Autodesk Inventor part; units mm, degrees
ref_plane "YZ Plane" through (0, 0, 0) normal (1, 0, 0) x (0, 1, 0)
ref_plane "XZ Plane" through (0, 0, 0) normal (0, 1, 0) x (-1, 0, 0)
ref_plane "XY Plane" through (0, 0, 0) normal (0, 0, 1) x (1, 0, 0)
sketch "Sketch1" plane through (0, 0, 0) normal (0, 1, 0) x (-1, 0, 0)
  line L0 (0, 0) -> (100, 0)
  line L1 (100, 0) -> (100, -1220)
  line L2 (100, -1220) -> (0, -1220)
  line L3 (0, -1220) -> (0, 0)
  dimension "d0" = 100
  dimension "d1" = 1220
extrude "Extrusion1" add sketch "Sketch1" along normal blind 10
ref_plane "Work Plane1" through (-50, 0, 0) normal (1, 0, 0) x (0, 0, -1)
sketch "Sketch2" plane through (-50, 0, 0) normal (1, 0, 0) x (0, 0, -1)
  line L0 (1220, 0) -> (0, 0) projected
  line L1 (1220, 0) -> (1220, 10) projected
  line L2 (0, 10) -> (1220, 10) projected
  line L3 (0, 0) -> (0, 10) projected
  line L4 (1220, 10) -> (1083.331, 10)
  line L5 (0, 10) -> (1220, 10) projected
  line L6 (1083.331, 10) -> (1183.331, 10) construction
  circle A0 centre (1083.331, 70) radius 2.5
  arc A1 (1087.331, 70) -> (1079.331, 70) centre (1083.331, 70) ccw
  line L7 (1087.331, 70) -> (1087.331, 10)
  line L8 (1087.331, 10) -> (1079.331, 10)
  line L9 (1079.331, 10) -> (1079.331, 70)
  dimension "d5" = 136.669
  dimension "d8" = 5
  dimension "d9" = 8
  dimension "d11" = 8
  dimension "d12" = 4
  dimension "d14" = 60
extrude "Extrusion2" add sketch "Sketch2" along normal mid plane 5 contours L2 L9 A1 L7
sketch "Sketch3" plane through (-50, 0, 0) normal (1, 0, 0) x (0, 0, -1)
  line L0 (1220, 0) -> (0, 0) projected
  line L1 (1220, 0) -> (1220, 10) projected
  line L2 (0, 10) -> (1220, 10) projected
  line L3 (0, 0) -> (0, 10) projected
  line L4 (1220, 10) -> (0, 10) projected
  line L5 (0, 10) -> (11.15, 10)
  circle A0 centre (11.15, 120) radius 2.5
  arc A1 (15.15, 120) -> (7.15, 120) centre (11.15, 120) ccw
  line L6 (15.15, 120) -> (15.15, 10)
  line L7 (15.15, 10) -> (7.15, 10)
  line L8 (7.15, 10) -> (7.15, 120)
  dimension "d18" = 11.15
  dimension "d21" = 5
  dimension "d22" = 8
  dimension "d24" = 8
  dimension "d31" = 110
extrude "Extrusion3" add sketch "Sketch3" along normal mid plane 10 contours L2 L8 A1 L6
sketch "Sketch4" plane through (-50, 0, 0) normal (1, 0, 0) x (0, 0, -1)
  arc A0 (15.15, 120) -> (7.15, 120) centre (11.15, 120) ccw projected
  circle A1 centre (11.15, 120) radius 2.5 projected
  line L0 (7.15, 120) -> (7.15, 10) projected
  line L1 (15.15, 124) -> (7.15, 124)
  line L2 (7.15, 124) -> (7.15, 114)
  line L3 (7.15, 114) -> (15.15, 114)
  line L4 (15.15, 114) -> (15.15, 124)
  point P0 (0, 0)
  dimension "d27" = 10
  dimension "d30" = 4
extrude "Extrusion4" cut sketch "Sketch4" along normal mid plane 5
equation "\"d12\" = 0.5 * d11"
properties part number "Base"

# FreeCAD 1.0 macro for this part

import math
import FreeCAD as App
import Part
import Sketcher


def add_polygon(sketch, points):
    """Adds a closed chain of lines whose ends are joined by coincident constraints."""
    first, n = sketch.GeometryCount, len(points)
    for a, b in zip(points, points[1:] + points[:1]):
        sketch.addGeometry(Part.LineSegment(App.Vector(*a, 0), App.Vector(*b, 0)), False)
    for i in range(n):
        sketch.addConstraint(Sketcher.Constraint("Coincident", first + i, 2, first + (i + 1) % n, 1))

doc = App.newDocument("Part")
params = doc.addObject("Spreadsheet::Sheet", "Params")
for row, (alias, value) in enumerate([
    ("sketch1_width", "100 mm"),
    ("sketch1_height", "1220 mm"),
    ("pad1_length", "10 mm"),
    ("sketch2_diameter", "5 mm"),
    ("sketch2_radius", "4 mm"),
    ("sketch2_width", "60 mm"),
    ("pad2_length", "5 mm"),
    ("sketch3_diameter", "5 mm"),
    ("sketch3_radius", "4 mm"),
    ("sketch3_width", "110 mm"),
    ("pad3_length", "10 mm"),
    ("sketch4_width", "10 mm"),
    ("sketch4_diameter", "5 mm"),
    ("pocket1_length", "5 mm"),
], start=1):
    params.set(f"A{row}", alias)
    params.set(f"B{row}", "=" + value)
    params.setAlias(f"B{row}", alias)

body = doc.addObject("PartDesign::Body", "Body")

# Sketch on XZ plane
sketch1 = body.newObject("Sketcher::SketchObject", "Sketch")
sketch1.AttachmentSupport = (doc.getObject("XZ_Plane"), [""])
sketch1.MapMode = "FlatFace"
add_polygon(sketch1, [(-100, 0), (0, 0), (0, -1220), (-100, -1220)])  # lines 0-3
sketch1.addConstraint([
    Sketcher.Constraint("Horizontal", 0),
    Sketcher.Constraint("Vertical", 1),
    Sketcher.Constraint("Horizontal", 2),
    Sketcher.Constraint("Vertical", 3),
    Sketcher.Constraint("Coincident", 0, 2, -1, 1),
    Sketcher.Constraint("DistanceX", 0, 1, 0, 2, 100.0),
    Sketcher.Constraint("DistanceY", 1, 2, 1, 1, 1220.0),
])
sketch1.setExpression("Constraints[9]", "Params.sketch1_width")
sketch1.setExpression("Constraints[10]", "Params.sketch1_height")
pad1 = body.newObject("PartDesign::Pad", "Pad")
pad1.Profile = sketch1
pad1.setExpression("Length", "Params.pad1_length")
pad1.Reversed = True

# Sketch on YZ plane
sketch2 = body.newObject("Sketcher::SketchObject", "Sketch001")
sketch2.AttachmentSupport = (doc.getObject("YZ_Plane"), [""])
sketch2.MapMode = "FlatFace"
sketch2.AttachmentOffset = App.Placement(App.Vector(0, 0, -50), App.Rotation())
sketch2.addGeometry([
    Part.LineSegment(App.Vector(10, -1079.3, 0), App.Vector(10, -1087.3, 0)),  # 0
    Part.LineSegment(App.Vector(10, -1087.3, 0), App.Vector(70, -1087.3, 0)),  # 1
    Part.ArcOfCircle(Part.Circle(App.Vector(70, -1083.3, 0), App.Vector(0, 0, 1), 4), math.radians(-90), math.radians(90)),  # 2
    Part.LineSegment(App.Vector(70, -1079.3, 0), App.Vector(10, -1079.3, 0)),  # 3
    Part.Circle(App.Vector(70, -1083.3, 0), App.Vector(0, 0, 1), 2.5),  # 4
], False)
sketch2.addConstraint([
    Sketcher.Constraint("Coincident", 0, 2, 1, 1),
    Sketcher.Constraint("Tangent", 1, 2, 2, 1),
    Sketcher.Constraint("Tangent", 2, 2, 3, 1),
    Sketcher.Constraint("Coincident", 3, 2, 0, 1),
    Sketcher.Constraint("Vertical", 0),
    Sketcher.Constraint("Horizontal", 1),
    Sketcher.Constraint("Horizontal", 3),
    Sketcher.Constraint("Coincident", 4, 3, 2, 3),
    Sketcher.Constraint("Diameter", 4, 5.0),
    Sketcher.Constraint("Radius", 2, 4.0),
    Sketcher.Constraint("DistanceX", 1, 1, 1, 2, 60.0),
    Sketcher.Constraint("DistanceX", -1, 1, 2, 3, 70.0),
    Sketcher.Constraint("DistanceY", 2, 3, -1, 1, 1083.331),
])
sketch2.setExpression("Constraints[8]", "Params.sketch2_diameter")
sketch2.setExpression("Constraints[9]", "Params.sketch2_radius")
sketch2.setExpression("Constraints[10]", "Params.sketch2_width")
pad2 = body.newObject("PartDesign::Pad", "Pad001")
pad2.Profile = sketch2
pad2.setExpression("Length", "Params.pad2_length")
pad2.Midplane = True

# Sketch on YZ plane
sketch3 = body.newObject("Sketcher::SketchObject", "Sketch002")
sketch3.AttachmentSupport = (doc.getObject("YZ_Plane"), [""])
sketch3.MapMode = "FlatFace"
sketch3.AttachmentOffset = App.Placement(App.Vector(0, 0, -50), App.Rotation())
sketch3.addGeometry([
    Part.LineSegment(App.Vector(10, -7.2, 0), App.Vector(10, -15.2, 0)),  # 0
    Part.LineSegment(App.Vector(10, -15.2, 0), App.Vector(120, -15.2, 0)),  # 1
    Part.ArcOfCircle(Part.Circle(App.Vector(120, -11.2, 0), App.Vector(0, 0, 1), 4), math.radians(-90), math.radians(90)),  # 2
    Part.LineSegment(App.Vector(120, -7.2, 0), App.Vector(10, -7.2, 0)),  # 3
    Part.Circle(App.Vector(120, -11.2, 0), App.Vector(0, 0, 1), 2.5),  # 4
], False)
sketch3.addConstraint([
    Sketcher.Constraint("Coincident", 0, 2, 1, 1),
    Sketcher.Constraint("Tangent", 1, 2, 2, 1),
    Sketcher.Constraint("Tangent", 2, 2, 3, 1),
    Sketcher.Constraint("Coincident", 3, 2, 0, 1),
    Sketcher.Constraint("Vertical", 0),
    Sketcher.Constraint("Horizontal", 1),
    Sketcher.Constraint("Horizontal", 3),
    Sketcher.Constraint("Coincident", 4, 3, 2, 3),
    Sketcher.Constraint("Diameter", 4, 5.0),
    Sketcher.Constraint("Radius", 2, 4.0),
    Sketcher.Constraint("DistanceX", 1, 1, 1, 2, 110.0),
    Sketcher.Constraint("DistanceY", 2, 3, -1, 1, 11.15),
    Sketcher.Constraint("DistanceX", -1, 1, 2, 3, 120.0),
])
sketch3.setExpression("Constraints[8]", "Params.sketch3_diameter")
sketch3.setExpression("Constraints[9]", "Params.sketch3_radius")
sketch3.setExpression("Constraints[10]", "Params.sketch3_width")
pad3 = body.newObject("PartDesign::Pad", "Pad002")
pad3.Profile = sketch3
pad3.setExpression("Length", "Params.pad3_length")
pad3.Midplane = True

# Sketch on YZ plane
sketch4 = body.newObject("Sketcher::SketchObject", "Sketch003")
sketch4.AttachmentSupport = (doc.getObject("YZ_Plane"), [""])
sketch4.MapMode = "FlatFace"
sketch4.AttachmentOffset = App.Placement(App.Vector(0, 0, -50), App.Rotation())
add_polygon(sketch4, [(114, -15.2), (124, -15.2), (124, -7.2), (114, -7.2)])  # lines 0-3
sketch4.addGeometry(Part.Circle(App.Vector(120, -11.2, 0), App.Vector(0, 0, 1), 2.5), False)  # 4
sketch4.addConstraint([
    Sketcher.Constraint("Horizontal", 0),
    Sketcher.Constraint("Vertical", 1),
    Sketcher.Constraint("Horizontal", 2),
    Sketcher.Constraint("Vertical", 3),
    Sketcher.Constraint("DistanceX", 0, 1, 0, 2, 10.0),
    Sketcher.Constraint("Diameter", 4, 5.0),
    Sketcher.Constraint("DistanceX", 4, 3, 0, 2, 4.0),
    Sketcher.Constraint("DistanceY", 0, 2, 4, 3, 4.0),
    Sketcher.Constraint("DistanceY", 4, 3, 1, 2, 4.0),
    Sketcher.Constraint("DistanceX", -1, 1, 4, 3, 120.0),
    Sketcher.Constraint("DistanceY", 4, 3, -1, 1, 11.15),
])
sketch4.setExpression("Constraints[8]", "Params.sketch4_width")
sketch4.setExpression("Constraints[9]", "Params.sketch4_diameter")
pocket1 = body.newObject("PartDesign::Pocket", "Pocket")
pocket1.Profile = sketch4
pocket1.setExpression("Length", "Params.pocket1_length")
pocket1.Midplane = True

doc.recompute()
